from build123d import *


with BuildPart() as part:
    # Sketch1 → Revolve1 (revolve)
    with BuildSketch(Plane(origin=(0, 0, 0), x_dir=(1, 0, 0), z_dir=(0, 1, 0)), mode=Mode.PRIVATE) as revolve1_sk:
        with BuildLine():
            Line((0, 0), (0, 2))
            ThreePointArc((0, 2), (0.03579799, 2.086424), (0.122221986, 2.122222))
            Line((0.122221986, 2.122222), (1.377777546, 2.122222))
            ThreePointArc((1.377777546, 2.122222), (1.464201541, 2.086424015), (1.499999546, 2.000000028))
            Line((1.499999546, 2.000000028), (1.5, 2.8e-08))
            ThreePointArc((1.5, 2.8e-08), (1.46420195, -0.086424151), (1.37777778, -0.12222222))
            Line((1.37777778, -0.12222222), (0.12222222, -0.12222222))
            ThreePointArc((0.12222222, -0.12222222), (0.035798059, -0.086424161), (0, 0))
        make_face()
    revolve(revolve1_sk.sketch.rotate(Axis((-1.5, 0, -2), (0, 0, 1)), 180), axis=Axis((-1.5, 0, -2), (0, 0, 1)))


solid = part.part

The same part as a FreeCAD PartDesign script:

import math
import FreeCAD as App
import Part
import Sketcher
from FreeCAD import Vector
Q = App.Units.Quantity

doc = App.newDocument("Part")
body = doc.addObject("PartDesign::Body", "Body")

# Sketch on XZ plane
sketch1 = body.newObject("Sketcher::SketchObject", "Sketch")
sketch1.AttachmentSupport = (doc.getObject("XZ_Plane"), [""])
sketch1.MapMode = "FlatFace"
sketch1.addGeometry([
    Part.LineSegment(Vector(0, -2, 0), Vector(0, 0, 0)),  # 0
    Part.ArcOfCircle(Part.Circle(Vector(0.12, 0, 0), Vector(0, 0, 1), 0.12), math.radians(90), math.radians(180)),  # 1
    Part.LineSegment(Vector(0.12, 0.12, 0), Vector(1.38, 0.12, 0)),  # 2
    Part.ArcOfCircle(Part.Circle(Vector(1.38, 0, 0), Vector(0, 0, 1), 0.12), math.radians(0), math.radians(90)),  # 3
    Part.LineSegment(Vector(1.5, 0, 0), Vector(1.5, -2, 0)),  # 4
    Part.ArcOfCircle(Part.Circle(Vector(1.38, -2, 0), Vector(0, 0, 1), 0.12), math.radians(-90), math.radians(0)),  # 5
    Part.LineSegment(Vector(1.38, -2.12, 0), Vector(0.12, -2.12, 0)),  # 6
    Part.ArcOfCircle(Part.Circle(Vector(0.12, -2, 0), Vector(0, 0, 1), 0.12), math.radians(180), math.radians(270)),  # 7
], False)
sketch1.addGeometry(Part.LineSegment(Vector(-1.5, -2.12, 0), Vector(-1.5, 0.12, 0)), True)  # axis
sketch1.addConstraint([
    Sketcher.Constraint("Tangent", 0, 2, 1, 2),
    Sketcher.Constraint("Tangent", 1, 1, 2, 1),
    Sketcher.Constraint("Tangent", 2, 2, 3, 2),
    Sketcher.Constraint("Tangent", 3, 1, 4, 1),
    Sketcher.Constraint("Tangent", 4, 2, 5, 2),
    Sketcher.Constraint("Tangent", 5, 1, 6, 1),
    Sketcher.Constraint("Tangent", 6, 2, 7, 2),
    Sketcher.Constraint("Tangent", 7, 1, 0, 1),
    Sketcher.Constraint("Vertical", 0),
    Sketcher.Constraint("Horizontal", 2),
    Sketcher.Constraint("Vertical", 4),
    Sketcher.Constraint("Horizontal", 6),
    Sketcher.Constraint("Vertical", 8),
    Sketcher.Constraint("Coincident", 0, 2, -1, 1),
    Sketcher.Constraint("Equal", 1, 3),
    Sketcher.Constraint("Equal", 3, 5),
    Sketcher.Constraint("Equal", 5, 7),
    Sketcher.Constraint("Horizontal", 6, 2, 8, 1),
    Sketcher.Constraint("Horizontal", 2, 2, 8, 2),
    Sketcher.Constraint("DistanceY", 0, 1, 0, 2, Q("2 mm")),
    Sketcher.Constraint("DistanceX", -1, 1, 3, 1, Q("1.5 mm")),
    Sketcher.Constraint("DistanceX", 8, 1, -1, 1, Q("1.5 mm")),
    Sketcher.Constraint("Radius", 1, Q("0.122222 mm")),
])
revolution = body.newObject("PartDesign::Revolution", "Revolution")
revolution.Profile = sketch1
revolution.ReferenceAxis = (sketch1, ["Axis0"])
revolution.Angle = 360

doc.recompute()
